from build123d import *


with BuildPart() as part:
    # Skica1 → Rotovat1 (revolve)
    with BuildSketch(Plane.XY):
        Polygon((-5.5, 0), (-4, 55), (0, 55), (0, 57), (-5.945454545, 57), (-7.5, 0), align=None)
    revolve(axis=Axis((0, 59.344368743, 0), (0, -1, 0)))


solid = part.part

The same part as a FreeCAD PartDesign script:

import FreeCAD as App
import Part
import Sketcher
from FreeCAD import Vector
Q = App.Units.Quantity

doc = App.newDocument("Part")
body = doc.addObject("PartDesign::Body", "Body")

# Sketch on XY plane
sketch1 = doc.addObject("Sketcher::SketchObject", "Sketch")
body.addObject(sketch1)
sketch1.AttachmentSupport = (doc.XY_Plane, [""])
sketch1.MapMode = "FlatFace"
sketch1.addGeometry([
    Part.LineSegment(Vector(-5.5, 0, 0), Vector(-4, 55, 0)),  # 0
    Part.LineSegment(Vector(-4, 55, 0), Vector(0, 55, 0)),  # 1
    Part.LineSegment(Vector(0, 55, 0), Vector(0, 57, 0)),  # 2
    Part.LineSegment(Vector(0, 57, 0), Vector(-5.9, 57, 0)),  # 3
    Part.LineSegment(Vector(-5.9, 57, 0), Vector(-7.5, 0, 0)),  # 4
    Part.LineSegment(Vector(-7.5, 0, 0), Vector(-5.5, 0, 0)),  # 5
], False)
sketch1.addConstraint([
    Sketcher.Constraint("Coincident", 0, 2, 1, 1),
    Sketcher.Constraint("Coincident", 1, 2, 2, 1),
    Sketcher.Constraint("Coincident", 2, 2, 3, 1),
    Sketcher.Constraint("Coincident", 3, 2, 4, 1),
    Sketcher.Constraint("Coincident", 4, 2, 5, 1),
    Sketcher.Constraint("Coincident", 5, 2, 0, 1),
    Sketcher.Constraint("Horizontal", 1),
    Sketcher.Constraint("Vertical", 2),
    Sketcher.Constraint("Horizontal", 3),
    Sketcher.Constraint("Horizontal", 5),
    Sketcher.Constraint("PointOnObject", 1, 2, -2),
    Sketcher.Constraint("PointOnObject", 4, 2, -1),
    Sketcher.Constraint("Parallel", 0, 4),
    Sketcher.Constraint("Equal", 5, 2),
    Sketcher.Constraint("DistanceX", 1, 1, 1, 2, Q("4 mm")),
    Sketcher.Constraint("DistanceX", 5, 1, 5, 2, Q("2 mm")),
    Sketcher.Constraint("DistanceY", -1, 1, 0, 2, Q("55 mm")),
    Sketcher.Constraint("DistanceX", 4, 2, -1, 1, Q("7.5 mm")),
])
revolution = doc.addObject("PartDesign::Revolution", "Revolution")
body.addObject(revolution)
revolution.Profile = sketch1
revolution.ReferenceAxis = (sketch1, ["V_Axis"])
revolution.Angle = 360

doc.recompute()
